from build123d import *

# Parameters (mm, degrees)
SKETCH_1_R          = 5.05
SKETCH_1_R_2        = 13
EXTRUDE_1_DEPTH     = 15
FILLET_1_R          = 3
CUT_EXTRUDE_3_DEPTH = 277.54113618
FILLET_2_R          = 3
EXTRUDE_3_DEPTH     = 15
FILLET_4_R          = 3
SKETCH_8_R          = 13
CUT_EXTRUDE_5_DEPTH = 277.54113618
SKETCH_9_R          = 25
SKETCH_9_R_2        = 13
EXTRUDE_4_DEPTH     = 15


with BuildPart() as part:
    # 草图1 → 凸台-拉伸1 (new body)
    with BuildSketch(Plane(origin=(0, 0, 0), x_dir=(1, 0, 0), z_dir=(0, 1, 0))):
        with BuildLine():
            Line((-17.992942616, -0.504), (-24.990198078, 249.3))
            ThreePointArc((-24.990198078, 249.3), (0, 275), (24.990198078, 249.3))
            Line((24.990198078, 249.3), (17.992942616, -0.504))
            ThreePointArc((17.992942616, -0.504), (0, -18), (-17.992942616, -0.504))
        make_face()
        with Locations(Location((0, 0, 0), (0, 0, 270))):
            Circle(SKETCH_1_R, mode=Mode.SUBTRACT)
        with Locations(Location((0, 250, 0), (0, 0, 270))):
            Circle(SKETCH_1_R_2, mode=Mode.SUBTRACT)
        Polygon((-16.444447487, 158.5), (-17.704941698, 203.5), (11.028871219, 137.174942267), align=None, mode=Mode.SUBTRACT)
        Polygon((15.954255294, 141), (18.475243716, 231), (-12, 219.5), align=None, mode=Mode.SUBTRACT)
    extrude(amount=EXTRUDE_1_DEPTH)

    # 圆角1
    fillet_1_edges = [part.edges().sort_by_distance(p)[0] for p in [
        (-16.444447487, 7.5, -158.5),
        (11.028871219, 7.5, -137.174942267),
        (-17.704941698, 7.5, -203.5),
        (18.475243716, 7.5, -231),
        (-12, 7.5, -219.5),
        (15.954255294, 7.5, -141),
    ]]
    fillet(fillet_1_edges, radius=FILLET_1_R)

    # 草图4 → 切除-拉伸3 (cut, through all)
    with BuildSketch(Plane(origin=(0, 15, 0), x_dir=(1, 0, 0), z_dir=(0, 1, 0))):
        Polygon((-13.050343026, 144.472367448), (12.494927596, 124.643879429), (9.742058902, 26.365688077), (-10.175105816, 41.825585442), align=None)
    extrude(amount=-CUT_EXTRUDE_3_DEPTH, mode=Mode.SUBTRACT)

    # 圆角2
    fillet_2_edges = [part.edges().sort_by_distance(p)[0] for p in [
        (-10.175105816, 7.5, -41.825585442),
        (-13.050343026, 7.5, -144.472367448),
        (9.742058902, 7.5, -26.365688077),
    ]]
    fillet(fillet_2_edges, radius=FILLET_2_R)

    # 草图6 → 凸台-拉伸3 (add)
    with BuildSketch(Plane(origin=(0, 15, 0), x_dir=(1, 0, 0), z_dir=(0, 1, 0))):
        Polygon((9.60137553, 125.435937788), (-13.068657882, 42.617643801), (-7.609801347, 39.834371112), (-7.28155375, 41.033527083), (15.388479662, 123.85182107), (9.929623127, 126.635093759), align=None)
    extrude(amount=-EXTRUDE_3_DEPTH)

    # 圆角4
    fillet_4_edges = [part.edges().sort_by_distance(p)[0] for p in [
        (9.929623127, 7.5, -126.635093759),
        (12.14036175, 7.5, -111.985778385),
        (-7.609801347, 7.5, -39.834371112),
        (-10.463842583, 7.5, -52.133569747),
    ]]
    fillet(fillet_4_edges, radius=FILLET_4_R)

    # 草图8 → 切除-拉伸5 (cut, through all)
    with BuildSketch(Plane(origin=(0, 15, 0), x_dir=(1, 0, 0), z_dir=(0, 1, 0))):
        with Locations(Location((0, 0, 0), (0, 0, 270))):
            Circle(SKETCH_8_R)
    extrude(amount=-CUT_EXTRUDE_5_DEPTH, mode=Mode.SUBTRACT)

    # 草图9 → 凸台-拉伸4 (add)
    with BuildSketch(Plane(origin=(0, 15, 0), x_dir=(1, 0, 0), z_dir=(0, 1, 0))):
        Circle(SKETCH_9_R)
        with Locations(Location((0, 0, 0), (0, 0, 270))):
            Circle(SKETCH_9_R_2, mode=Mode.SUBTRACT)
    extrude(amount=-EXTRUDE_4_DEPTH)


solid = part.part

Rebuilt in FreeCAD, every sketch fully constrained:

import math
import FreeCAD as App
import Part
import Sketcher
from FreeCAD import Vector
Q = App.Units.Quantity


def edges_at(feature, points):
    """Names of the edges that pass closest to the given points."""
    edges = feature.Shape.Edges
    near = lambda p: min(range(len(edges)), key=lambda i: edges[i].distToShape(Part.Vertex(*p))[0])
    return sorted({f"Edge{near(p) + 1}" for p in points})

doc = App.newDocument("Part")
body = doc.addObject("PartDesign::Body", "Body")

sketch1 = doc.addObject("Sketcher::SketchObject", "Sketch")
body.addObject(sketch1)
sketch1.AttachmentSupport = (doc.XZ_Plane, [""])
sketch1.MapMode = "FlatFace"
sketch1.addGeometry(Part.LineSegment(Vector(-24.990198, -249.3, 0), Vector(-17.992943, 0.504, 0)), False)
sketch1.addGeometry(Part.ArcOfCircle(Part.Circle(Vector(0, 0, 0), Vector(0, 0, 1), 18), math.radians(1.604492), math.radians(178.395508)), False)
sketch1.addGeometry(Part.LineSegment(Vector(17.992943, 0.504, 0), Vector(24.990198, -249.3, 0)), False)
sketch1.addGeometry(Part.ArcOfCircle(Part.Circle(Vector(0, -250, 0), Vector(0, 0, 1), 25), math.radians(178.395508), math.radians(361.604492)), False)
sketch1.addGeometry(Part.Circle(Vector(0, 0, 0), Vector(0, 0, 1), 5.05), False)
sketch1.addGeometry(Part.LineSegment(Vector(15.954255, -141, 0), Vector(-12, -219.5, 0)), False)
sketch1.addGeometry(Part.LineSegment(Vector(-12, -219.5, 0), Vector(18.475244, -231, 0)), False)
sketch1.addGeometry(Part.LineSegment(Vector(18.475244, -231, 0), Vector(15.954255, -141, 0)), False)
sketch1.addGeometry(Part.LineSegment(Vector(-16.444447, -158.5, 0), Vector(-17.704942, -203.5, 0)), False)
sketch1.addGeometry(Part.LineSegment(Vector(-17.704942, -203.5, 0), Vector(11.028871, -137.174942, 0)), False)
sketch1.addGeometry(Part.LineSegment(Vector(11.028871, -137.174942, 0), Vector(-16.444447, -158.5, 0)), False)
sketch1.addGeometry(Part.Circle(Vector(0, -250, 0), Vector(0, 0, 1), 13), False)
sketch1.addConstraint(Sketcher.Constraint("Tangent", 0, 2, 1, 2))
sketch1.addConstraint(Sketcher.Constraint("Tangent", 1, 1, 2, 1))
sketch1.addConstraint(Sketcher.Constraint("Tangent", 2, 2, 3, 2))
sketch1.addConstraint(Sketcher.Constraint("Tangent", 3, 1, 0, 1))
sketch1.addConstraint(Sketcher.Constraint("Coincident", 5, 2, 6, 1))
sketch1.addConstraint(Sketcher.Constraint("Coincident", 6, 2, 7, 1))
sketch1.addConstraint(Sketcher.Constraint("Coincident", 7, 2, 5, 1))
sketch1.addConstraint(Sketcher.Constraint("Coincident", 8, 2, 9, 1))
sketch1.addConstraint(Sketcher.Constraint("Coincident", 9, 2, 10, 1))
sketch1.addConstraint(Sketcher.Constraint("Coincident", 10, 2, 8, 1))
sketch1.addConstraint(Sketcher.Constraint("Coincident", 1, 3, -1, 1))
sketch1.addConstraint(Sketcher.Constraint("Coincident", 4, 3, -1, 1))
sketch1.addConstraint(Sketcher.Constraint("Coincident", 11, 3, 3, 3))
sketch1.addConstraint(Sketcher.Constraint("PointOnObject", 3, 3, -2))
sketch1.addConstraint(Sketcher.Constraint("Parallel", 2, 7))
sketch1.addConstraint(Sketcher.Constraint("Parallel", 0, 8))
sketch1.addConstraint(Sketcher.Constraint("Diameter", 11, Q("26 mm")))
sketch1.addConstraint(Sketcher.Constraint("Radius", 1, Q("18 mm")))
sketch1.addConstraint(Sketcher.Constraint("Radius", 3, Q("25 mm")))
sketch1.addConstraint(Sketcher.Constraint("Diameter", 4, Q("10.1 mm")))
sketch1.addConstraint(Sketcher.Constraint("DistanceY", 3, 3, -1, 1, Q("250 mm")))
sketch1.addConstraint(Sketcher.Constraint("DistanceX", 5, 2, -1, 1, Q("12 mm")))
sketch1.addConstraint(Sketcher.Constraint("DistanceY", 6, 2, -1, 1, Q("231 mm")))
sketch1.addConstraint(Sketcher.Constraint("DistanceY", 7, 2, -1, 1, Q("141 mm")))
sketch1.addConstraint(Sketcher.Constraint("DistanceY", 5, 2, 8, 2, Q("16 mm")))
sketch1.addConstraint(Sketcher.Constraint("DistanceY", 8, 2, 10, 2, Q("45 mm")))
sketch1.addConstraint(Sketcher.Constraint("DistanceY", 5, 2, -1, 1, Q("219.5 mm")))
sketch1.addConstraint(Sketcher.Constraint("Distance", 5, Q("83.328809 mm")))
sketch1.addConstraint(Sketcher.Constraint("Distance", 10, Q("34.778461 mm")))
sketch1.addConstraint(Sketcher.Constraint("DistanceX", 8, 2, -1, 1, Q("17.704942 mm")))
sketch1.addConstraint(Sketcher.Constraint("DistanceX", -1, 1, 9, 2, Q("11.028871 mm")))
pad1 = doc.addObject("PartDesign::Pad", "Pad")
body.addObject(pad1)
pad1.Profile = sketch1
pad1.Length = 15
pad1.Reversed = True
doc.recompute()

fillet = doc.addObject("PartDesign::Fillet", "Fillet")
body.addObject(fillet)
fillet.Base = (pad1, edges_at(pad1, [
    (-16.444, 7.5, -158.5),
    (11.029, 7.5, -137.175),
    (-17.705, 7.5, -203.5),
    (18.475, 7.5, -231),
    (-12, 7.5, -219.5),
    (15.954, 7.5, -141),
]))
fillet.Radius = 3

sketch2 = doc.addObject("Sketcher::SketchObject", "Sketch001")
body.addObject(sketch2)
sketch2.AttachmentSupport = (doc.XZ_Plane, [""])
sketch2.MapMode = "FlatFace"
sketch2.AttachmentOffset = App.Placement(Vector(0, 0, -15), App.Rotation())
sketch2.addGeometry(Part.LineSegment(Vector(12.494928, -124.643879, 0), Vector(-13.050343, -144.472367, 0)), False)
sketch2.addGeometry(Part.LineSegment(Vector(-13.050343, -144.472367, 0), Vector(-10.175106, -41.825585, 0)), False)
sketch2.addGeometry(Part.LineSegment(Vector(-10.175106, -41.825585, 0), Vector(9.742059, -26.365688, 0)), False)
sketch2.addGeometry(Part.LineSegment(Vector(9.742059, -26.365688, 0), Vector(12.494928, -124.643879, 0)), False)
sketch2.addConstraint(Sketcher.Constraint("Coincident", 0, 2, 1, 1))
sketch2.addConstraint(Sketcher.Constraint("Coincident", 1, 2, 2, 1))
sketch2.addConstraint(Sketcher.Constraint("Coincident", 2, 2, 3, 1))
sketch2.addConstraint(Sketcher.Constraint("Coincident", 3, 2, 0, 1))
sketch2.addConstraint(Sketcher.Constraint("Parallel", 0, 2))
sketch2.addConstraint(Sketcher.Constraint("DistanceX", 0, 2, 2, 2, Q("22.792402 mm")))
sketch2.addConstraint(Sketcher.Constraint("Distance", 2, Q("25.213129 mm")))
sketch2.addConstraint(Sketcher.Constraint("Distance", 3, Q("98.316739 mm")))
sketch2.addConstraint(Sketcher.Constraint("DistanceX", -1, 1, 2, 2, Q("9.742059 mm")))
sketch2.addConstraint(Sketcher.Constraint("DistanceY", 2, 2, -1, 1, Q("26.365688 mm")))
sketch2.addConstraint(Sketcher.Constraint("DistanceY", 3, 2, -1, 1, Q("124.643879 mm")))
sketch2.addConstraint(Sketcher.Constraint("DistanceY", 0, 2, 2, 2, Q("118.106679 mm")))
pocket1 = doc.addObject("PartDesign::Pocket", "Pocket")
body.addObject(pocket1)
pocket1.Profile = sketch2
pocket1.Type = "ThroughAll"
pocket1.Reversed = True
doc.recompute()

fillet2 = doc.addObject("PartDesign::Fillet", "Fillet001")
body.addObject(fillet2)
fillet2.Base = (pocket1, edges_at(pocket1, [(-10.175, 7.5, -41.826), (-13.05, 7.5, -144.472), (9.742, 7.5, -26.366)]))
fillet2.Radius = 3

sketch3 = doc.addObject("Sketcher::SketchObject", "Sketch002")
body.addObject(sketch3)
sketch3.AttachmentSupport = (doc.XZ_Plane, [""])
sketch3.MapMode = "FlatFace"
sketch3.AttachmentOffset = App.Placement(Vector(0, 0, -15), App.Rotation())
sketch3.addGeometry(Part.LineSegment(Vector(9.601376, -125.435938, 0), Vector(-13.068658, -42.617644, 0)), False)
sketch3.addGeometry(Part.LineSegment(Vector(-13.068658, -42.617644, 0), Vector(-7.609801, -39.834371, 0)), False)
sketch3.addGeometry(Part.LineSegment(Vector(-7.609801, -39.834371, 0), Vector(-7.281554, -41.033527, 0)), False)
sketch3.addGeometry(Part.LineSegment(Vector(-7.281554, -41.033527, 0), Vector(15.38848, -123.851821, 0)), False)
sketch3.addGeometry(Part.LineSegment(Vector(15.38848, -123.851821, 0), Vector(9.929623, -126.635094, 0)), False)
sketch3.addGeometry(Part.LineSegment(Vector(9.929623, -126.635094, 0), Vector(9.601376, -125.435938, 0)), False)
sketch3.addConstraint(Sketcher.Constraint("Coincident", 0, 2, 1, 1))
sketch3.addConstraint(Sketcher.Constraint("Coincident", 1, 2, 2, 1))
sketch3.addConstraint(Sketcher.Constraint("Coincident", 2, 2, 3, 1))
sketch3.addConstraint(Sketcher.Constraint("Coincident", 3, 2, 4, 1))
sketch3.addConstraint(Sketcher.Constraint("Coincident", 4, 2, 5, 1))
sketch3.addConstraint(Sketcher.Constraint("Coincident", 5, 2, 0, 1))
sketch3.addConstraint(Sketcher.Constraint("Parallel", 0, 2))
sketch3.addConstraint(Sketcher.Constraint("Parallel", 2, 3))
sketch3.addConstraint(Sketcher.Constraint("Parallel", 1, 4))
sketch3.addConstraint(Sketcher.Constraint("Parallel", 3, 5))
sketch3.addConstraint(Sketcher.Constraint("Equal", 0, 3))
sketch3.addConstraint(Sketcher.Constraint("DistanceX", 1, 2, -1, 1, Q("7.609801 mm")))
sketch3.addConstraint(Sketcher.Constraint("Distance", 0, Q("85.865012 mm")))
sketch3.addConstraint(Sketcher.Constraint("Distance", 2, Q("1.24327 mm")))
sketch3.addConstraint(Sketcher.Constraint("DistanceY", 1, 2, -1, 1, Q("39.834371 mm")))
sketch3.addConstraint(Sketcher.Constraint("DistanceX", -1, 1, 3, 2, Q("15.38848 mm")))
sketch3.addConstraint(Sketcher.Constraint("DistanceX", 2, 2, 5, 2, Q("16.882929 mm")))
sketch3.addConstraint(Sketcher.Constraint("DistanceY", 5, 2, 2, 2, Q("84.402411 mm")))
pad2 = doc.addObject("PartDesign::Pad", "Pad001")
body.addObject(pad2)
pad2.Profile = sketch3
pad2.Length = 15
doc.recompute()

fillet3 = doc.addObject("PartDesign::Fillet", "Fillet002")
body.addObject(fillet3)
fillet3.Base = (pad2, edges_at(pad2, [
    (9.93, 7.5, -126.635),
    (12.14, 7.5, -111.986),
    (-7.61, 7.5, -39.834),
    (-10.464, 7.5, -52.134),
]))
fillet3.Radius = 3

sketch4 = doc.addObject("Sketcher::SketchObject", "Sketch003")
body.addObject(sketch4)
sketch4.AttachmentSupport = (doc.XZ_Plane, [""])
sketch4.MapMode = "FlatFace"
sketch4.AttachmentOffset = App.Placement(Vector(0, 0, -15), App.Rotation())
sketch4.addGeometry(Part.Circle(Vector(0, 0, 0), Vector(0, 0, 1), 13), False)
sketch4.addConstraint(Sketcher.Constraint("Coincident", 0, 3, -1, 1))
sketch4.addConstraint(Sketcher.Constraint("Diameter", 0, Q("26 mm")))
pocket2 = doc.addObject("PartDesign::Pocket", "Pocket001")
body.addObject(pocket2)
pocket2.Profile = sketch4
pocket2.Type = "ThroughAll"
pocket2.Reversed = True

sketch5 = doc.addObject("Sketcher::SketchObject", "Sketch004")
body.addObject(sketch5)
sketch5.AttachmentSupport = (doc.XZ_Plane, [""])
sketch5.MapMode = "FlatFace"
sketch5.AttachmentOffset = App.Placement(Vector(0, 0, -15), App.Rotation())
sketch5.addGeometry(Part.Circle(Vector(0, 0, 0), Vector(0, 0, 1), 25), False)
sketch5.addGeometry(Part.Circle(Vector(0, 0, 0), Vector(0, 0, 1), 13), False)
sketch5.addConstraint(Sketcher.Constraint("Coincident", 0, 3, -1, 1))
sketch5.addConstraint(Sketcher.Constraint("Coincident", 1, 3, -1, 1))
sketch5.addConstraint(Sketcher.Constraint("Diameter", 0, Q("50 mm")))
sketch5.addConstraint(Sketcher.Constraint("Diameter", 1, Q("26 mm")))
pad3 = doc.addObject("PartDesign::Pad", "Pad002")
body.addObject(pad3)
pad3.Profile = sketch5
pad3.Length = 15

doc.recompute()
